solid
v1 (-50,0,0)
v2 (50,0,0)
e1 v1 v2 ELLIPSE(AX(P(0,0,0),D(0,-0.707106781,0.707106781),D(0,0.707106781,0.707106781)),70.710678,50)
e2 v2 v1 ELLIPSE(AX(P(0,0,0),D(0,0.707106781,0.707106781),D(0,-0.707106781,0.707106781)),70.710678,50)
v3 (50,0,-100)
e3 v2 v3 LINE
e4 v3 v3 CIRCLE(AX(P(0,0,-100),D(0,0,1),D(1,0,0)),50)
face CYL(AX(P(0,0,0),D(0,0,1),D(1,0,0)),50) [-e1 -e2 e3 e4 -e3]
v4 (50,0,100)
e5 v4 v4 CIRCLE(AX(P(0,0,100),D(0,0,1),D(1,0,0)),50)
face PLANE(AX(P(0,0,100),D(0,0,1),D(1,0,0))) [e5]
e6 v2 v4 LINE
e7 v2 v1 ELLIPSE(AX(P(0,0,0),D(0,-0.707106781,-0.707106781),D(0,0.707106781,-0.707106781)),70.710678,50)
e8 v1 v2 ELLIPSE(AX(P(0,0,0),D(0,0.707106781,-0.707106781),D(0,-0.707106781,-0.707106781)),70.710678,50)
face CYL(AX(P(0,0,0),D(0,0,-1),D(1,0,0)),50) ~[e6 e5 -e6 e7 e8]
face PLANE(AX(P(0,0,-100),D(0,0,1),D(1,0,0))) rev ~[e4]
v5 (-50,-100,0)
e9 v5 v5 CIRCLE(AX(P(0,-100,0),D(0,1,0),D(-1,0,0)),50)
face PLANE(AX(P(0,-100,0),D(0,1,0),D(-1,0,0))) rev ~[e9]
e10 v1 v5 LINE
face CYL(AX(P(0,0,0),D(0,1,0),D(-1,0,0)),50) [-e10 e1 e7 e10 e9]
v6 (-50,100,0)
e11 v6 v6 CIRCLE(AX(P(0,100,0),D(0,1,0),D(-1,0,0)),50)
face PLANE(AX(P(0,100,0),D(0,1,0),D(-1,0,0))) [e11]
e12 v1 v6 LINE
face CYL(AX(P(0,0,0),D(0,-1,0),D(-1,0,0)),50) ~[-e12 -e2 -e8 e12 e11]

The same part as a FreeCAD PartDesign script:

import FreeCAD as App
import Part
import Sketcher
Q = App.Units.Quantity

doc = App.newDocument("Part")
body = doc.addObject("PartDesign::Body", "Body")

# Sketch on XY plane
sketch1 = body.newObject("Sketcher::SketchObject", "Sketch")
sketch1.AttachmentSupport = (doc.getObject("XY_Plane"), [""])
sketch1.MapMode = "FlatFace"
sketch1.addGeometry(Part.Circle(App.Vector(0, 0, 0), App.Vector(0, 0, 1), 50), False)
sketch1.addConstraint([
    Sketcher.Constraint("Coincident", 0, 3, -1, 1),
    Sketcher.Constraint("Diameter", 0, Q("3.937 in")),
])
pad1 = body.newObject("PartDesign::Pad", "Pad")
pad1.Profile = sketch1
pad1.Length = 200
pad1.Midplane = True

# Sketch on XZ plane
sketch2 = body.newObject("Sketcher::SketchObject", "Sketch001")
sketch2.AttachmentSupport = (doc.getObject("XZ_Plane"), [""])
sketch2.MapMode = "FlatFace"
sketch2.addGeometry(Part.Circle(App.Vector(0, 0, 0), App.Vector(0, 0, 1), 50), False)
sketch2.addConstraint([
    Sketcher.Constraint("Coincident", 0, 3, -1, 1),
    Sketcher.Constraint("Diameter", 0, Q("3.937 in")),
])
pad2 = body.newObject("PartDesign::Pad", "Pad001")
pad2.Profile = sketch2
pad2.Length = 200
pad2.Midplane = True

doc.recompute()
